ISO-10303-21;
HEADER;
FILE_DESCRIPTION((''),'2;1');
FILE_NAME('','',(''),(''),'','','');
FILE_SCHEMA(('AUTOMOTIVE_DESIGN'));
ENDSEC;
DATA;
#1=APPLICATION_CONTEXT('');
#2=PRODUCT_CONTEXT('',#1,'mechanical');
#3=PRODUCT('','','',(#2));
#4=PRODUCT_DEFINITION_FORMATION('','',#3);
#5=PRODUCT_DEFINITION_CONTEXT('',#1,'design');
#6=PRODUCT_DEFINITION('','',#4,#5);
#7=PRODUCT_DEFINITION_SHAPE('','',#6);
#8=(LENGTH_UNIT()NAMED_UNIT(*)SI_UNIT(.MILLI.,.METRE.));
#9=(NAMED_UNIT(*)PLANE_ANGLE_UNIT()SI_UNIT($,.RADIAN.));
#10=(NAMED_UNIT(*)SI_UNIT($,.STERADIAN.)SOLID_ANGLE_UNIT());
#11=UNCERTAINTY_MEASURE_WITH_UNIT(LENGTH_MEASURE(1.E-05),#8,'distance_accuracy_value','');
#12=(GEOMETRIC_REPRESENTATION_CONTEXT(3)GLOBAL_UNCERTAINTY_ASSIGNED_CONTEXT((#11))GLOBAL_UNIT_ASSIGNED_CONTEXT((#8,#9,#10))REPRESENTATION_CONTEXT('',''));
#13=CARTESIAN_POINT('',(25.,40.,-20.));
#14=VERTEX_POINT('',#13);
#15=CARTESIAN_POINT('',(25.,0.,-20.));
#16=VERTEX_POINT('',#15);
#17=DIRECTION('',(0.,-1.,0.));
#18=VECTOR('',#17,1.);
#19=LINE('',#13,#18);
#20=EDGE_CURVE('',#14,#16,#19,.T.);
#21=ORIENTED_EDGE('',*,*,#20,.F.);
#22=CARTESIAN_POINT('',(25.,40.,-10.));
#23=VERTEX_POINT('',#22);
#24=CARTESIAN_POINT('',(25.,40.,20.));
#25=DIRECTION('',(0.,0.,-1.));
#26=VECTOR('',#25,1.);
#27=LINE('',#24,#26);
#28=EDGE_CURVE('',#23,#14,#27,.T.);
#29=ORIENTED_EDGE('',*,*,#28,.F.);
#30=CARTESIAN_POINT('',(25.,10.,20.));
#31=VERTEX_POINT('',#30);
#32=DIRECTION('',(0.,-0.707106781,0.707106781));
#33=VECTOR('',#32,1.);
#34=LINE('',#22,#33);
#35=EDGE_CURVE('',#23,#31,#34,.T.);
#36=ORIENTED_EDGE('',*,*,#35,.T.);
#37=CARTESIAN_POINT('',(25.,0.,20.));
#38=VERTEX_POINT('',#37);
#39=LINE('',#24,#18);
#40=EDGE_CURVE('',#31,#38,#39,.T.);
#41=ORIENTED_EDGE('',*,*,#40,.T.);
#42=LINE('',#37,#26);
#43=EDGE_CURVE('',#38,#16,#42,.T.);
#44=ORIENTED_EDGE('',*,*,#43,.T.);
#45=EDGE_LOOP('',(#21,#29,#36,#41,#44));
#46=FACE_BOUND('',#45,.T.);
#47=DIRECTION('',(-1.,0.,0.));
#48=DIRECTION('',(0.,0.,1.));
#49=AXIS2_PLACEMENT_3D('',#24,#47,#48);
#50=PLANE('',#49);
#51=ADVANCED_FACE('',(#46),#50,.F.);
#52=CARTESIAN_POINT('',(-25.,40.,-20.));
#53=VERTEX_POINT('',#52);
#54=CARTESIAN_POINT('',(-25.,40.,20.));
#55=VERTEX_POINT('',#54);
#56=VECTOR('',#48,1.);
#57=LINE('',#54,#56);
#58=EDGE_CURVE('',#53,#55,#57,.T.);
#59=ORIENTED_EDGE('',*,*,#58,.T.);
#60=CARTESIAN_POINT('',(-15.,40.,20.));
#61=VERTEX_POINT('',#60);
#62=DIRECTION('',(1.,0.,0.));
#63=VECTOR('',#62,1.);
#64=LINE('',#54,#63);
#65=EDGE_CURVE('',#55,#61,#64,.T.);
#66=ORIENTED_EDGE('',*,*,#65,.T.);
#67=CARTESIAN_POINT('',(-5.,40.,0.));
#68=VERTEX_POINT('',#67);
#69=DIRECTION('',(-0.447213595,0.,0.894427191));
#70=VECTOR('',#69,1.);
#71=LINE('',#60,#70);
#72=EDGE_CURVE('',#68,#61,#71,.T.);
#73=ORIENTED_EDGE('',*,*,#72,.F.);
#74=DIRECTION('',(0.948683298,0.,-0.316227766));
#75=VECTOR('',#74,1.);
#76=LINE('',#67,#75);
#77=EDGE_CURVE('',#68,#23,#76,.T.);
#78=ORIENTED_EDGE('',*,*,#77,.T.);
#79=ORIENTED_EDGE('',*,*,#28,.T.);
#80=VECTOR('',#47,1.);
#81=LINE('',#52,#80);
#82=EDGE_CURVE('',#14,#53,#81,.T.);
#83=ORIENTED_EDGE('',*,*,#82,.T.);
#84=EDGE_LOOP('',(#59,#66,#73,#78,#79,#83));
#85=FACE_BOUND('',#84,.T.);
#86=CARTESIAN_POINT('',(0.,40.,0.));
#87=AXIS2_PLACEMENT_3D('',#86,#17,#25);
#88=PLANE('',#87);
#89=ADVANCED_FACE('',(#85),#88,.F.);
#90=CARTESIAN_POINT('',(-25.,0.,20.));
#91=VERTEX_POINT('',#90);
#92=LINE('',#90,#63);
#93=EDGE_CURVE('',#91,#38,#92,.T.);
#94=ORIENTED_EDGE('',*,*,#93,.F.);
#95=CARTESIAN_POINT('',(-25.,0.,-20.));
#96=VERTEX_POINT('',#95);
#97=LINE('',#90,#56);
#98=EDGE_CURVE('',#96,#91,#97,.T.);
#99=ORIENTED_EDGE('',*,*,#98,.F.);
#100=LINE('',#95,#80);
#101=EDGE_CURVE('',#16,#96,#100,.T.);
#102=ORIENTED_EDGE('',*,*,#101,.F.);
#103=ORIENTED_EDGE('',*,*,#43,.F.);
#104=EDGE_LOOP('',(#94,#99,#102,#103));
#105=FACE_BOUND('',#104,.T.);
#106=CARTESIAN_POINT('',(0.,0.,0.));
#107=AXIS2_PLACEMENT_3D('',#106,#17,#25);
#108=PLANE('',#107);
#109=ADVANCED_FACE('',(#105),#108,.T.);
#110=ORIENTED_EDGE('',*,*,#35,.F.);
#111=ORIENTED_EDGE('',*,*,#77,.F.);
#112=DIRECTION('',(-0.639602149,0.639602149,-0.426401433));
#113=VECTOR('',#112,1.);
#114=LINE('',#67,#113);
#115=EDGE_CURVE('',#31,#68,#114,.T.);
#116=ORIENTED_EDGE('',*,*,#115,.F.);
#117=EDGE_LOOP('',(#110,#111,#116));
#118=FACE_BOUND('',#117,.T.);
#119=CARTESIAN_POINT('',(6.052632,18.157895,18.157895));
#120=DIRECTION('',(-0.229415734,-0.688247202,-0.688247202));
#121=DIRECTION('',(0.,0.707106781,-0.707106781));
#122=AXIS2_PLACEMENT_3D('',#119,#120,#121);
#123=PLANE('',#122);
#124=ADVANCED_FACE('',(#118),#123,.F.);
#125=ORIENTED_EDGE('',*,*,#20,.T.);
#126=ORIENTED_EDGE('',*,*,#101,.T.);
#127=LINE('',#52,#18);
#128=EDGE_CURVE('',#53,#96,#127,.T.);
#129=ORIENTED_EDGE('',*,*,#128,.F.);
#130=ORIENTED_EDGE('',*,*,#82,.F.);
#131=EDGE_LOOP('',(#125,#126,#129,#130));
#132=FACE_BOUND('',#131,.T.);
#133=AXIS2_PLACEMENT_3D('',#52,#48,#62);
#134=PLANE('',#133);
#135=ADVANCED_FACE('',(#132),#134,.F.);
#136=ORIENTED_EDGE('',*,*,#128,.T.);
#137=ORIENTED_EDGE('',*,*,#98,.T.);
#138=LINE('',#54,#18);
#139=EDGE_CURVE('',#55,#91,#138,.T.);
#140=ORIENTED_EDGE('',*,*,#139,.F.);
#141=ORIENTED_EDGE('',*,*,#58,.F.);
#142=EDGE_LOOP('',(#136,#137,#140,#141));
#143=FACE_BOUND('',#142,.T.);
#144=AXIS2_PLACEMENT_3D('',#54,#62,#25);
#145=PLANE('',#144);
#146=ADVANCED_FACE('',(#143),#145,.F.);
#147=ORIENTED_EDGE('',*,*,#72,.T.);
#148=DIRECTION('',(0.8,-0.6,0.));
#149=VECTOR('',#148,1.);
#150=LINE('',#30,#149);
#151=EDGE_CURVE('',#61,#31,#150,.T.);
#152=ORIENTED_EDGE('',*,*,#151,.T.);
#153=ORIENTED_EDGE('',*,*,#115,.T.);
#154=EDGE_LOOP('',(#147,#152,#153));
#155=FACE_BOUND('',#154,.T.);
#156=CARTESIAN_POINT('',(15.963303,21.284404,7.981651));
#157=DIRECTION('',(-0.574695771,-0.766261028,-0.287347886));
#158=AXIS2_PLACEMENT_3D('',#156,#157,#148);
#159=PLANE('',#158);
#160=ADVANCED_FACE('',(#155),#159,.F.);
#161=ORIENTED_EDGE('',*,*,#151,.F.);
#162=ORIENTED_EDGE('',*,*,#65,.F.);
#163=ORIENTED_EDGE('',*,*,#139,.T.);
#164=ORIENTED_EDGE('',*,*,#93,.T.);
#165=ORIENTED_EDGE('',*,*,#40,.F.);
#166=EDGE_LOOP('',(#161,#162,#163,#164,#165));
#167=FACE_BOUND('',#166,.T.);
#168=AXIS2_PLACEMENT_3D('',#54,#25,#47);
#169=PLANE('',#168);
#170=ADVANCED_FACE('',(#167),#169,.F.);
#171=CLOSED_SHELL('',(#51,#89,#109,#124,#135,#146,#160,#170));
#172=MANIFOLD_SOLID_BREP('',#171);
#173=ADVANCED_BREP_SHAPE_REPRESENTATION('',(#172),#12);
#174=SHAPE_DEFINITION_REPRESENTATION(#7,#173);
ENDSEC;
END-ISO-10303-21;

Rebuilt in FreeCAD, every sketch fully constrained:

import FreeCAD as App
import Part
import Sketcher

V = App.Vector
Q = App.Units.Quantity


def add_polygon(sketch, points):
    """Adds a closed chain of lines whose ends are joined by coincident constraints."""
    first, n = sketch.GeometryCount, len(points)
    for a, b in zip(points, points[1:] + points[:1]):
        sketch.addGeometry(Part.LineSegment(App.Vector(*a, 0), App.Vector(*b, 0)), False)
    for i in range(n):
        sketch.addConstraint(Sketcher.Constraint("Coincident", first + i, 2, first + (i + 1) % n, 1))

doc = App.newDocument("Part")
params = doc.addObject("Spreadsheet::Sheet", "Params")
for row, (alias, value) in enumerate([
    ("sketch1_width", "50 mm"),
    ("sketch1_height", "40 mm"),
    ("pad1_length", "40 mm"),
    ("sketch2_length", "50 mm"),
    ("pocket1_length", "40 mm"),
    ("pocket2_length", "40 mm"),
], start=1):
    params.set(f"A{row}", alias)
    params.set(f"B{row}", "=" + value)
    params.setAlias(f"B{row}", alias)

body = doc.addObject("PartDesign::Body", "Body")

# Sketch on XZ plane
sketch1 = body.newObject("Sketcher::SketchObject", "Sketch")
sketch1.AttachmentSupport = (doc.getObject("XZ_Plane"), [""])
sketch1.MapMode = "FlatFace"
add_polygon(sketch1, [(-25, -20), (-25, 20), (25, 20), (25, -20)])  # lines 0-3
sketch1.addConstraint([
    Sketcher.Constraint("Vertical", 0),
    Sketcher.Constraint("Horizontal", 1),
    Sketcher.Constraint("Vertical", 2),
    Sketcher.Constraint("Horizontal", 3),
    Sketcher.Constraint("Symmetric", 0, 2, 2, 2, -1, 1),
    Sketcher.Constraint("DistanceX", 1, 1, 1, 2, Q("50 mm")),
    Sketcher.Constraint("DistanceY", 0, 1, 0, 2, Q("40 mm")),
])
sketch1.setExpression("Constraints[9]", "Params.sketch1_width")
sketch1.setExpression("Constraints[10]", "Params.sketch1_height")
pad1 = body.newObject("PartDesign::Pad", "Pad")
pad1.Profile = sketch1
pad1.setExpression("Length", "Params.pad1_length")
pad1.Reversed = True

# Sketch on an angled plane
sketch2 = body.newObject("Sketcher::SketchObject", "Sketch001")
sketch2.Placement = App.Placement(V(15.963303, 21.284404, 7.981651), App.Rotation(V(0.818367137, -0.538104419, -0.201789157), V(0, 0.351123442, -0.936329178), V(0.574695771, 0.766261028, 0.287347886), "ZXY"))
add_polygon(sketch2, [(-26, 14), (-38, -5), (11, -15)])  # lines 0-2
sketch2.addConstraint([
    Sketcher.Constraint("Distance", 1, Q("50 mm")),
    Sketcher.Constraint("Distance", 0, Q("22.36068 mm")),
    Sketcher.Constraint("DistanceX", -1, 1, 1, 2, Q("11.042351 mm")),
    Sketcher.Constraint("DistanceY", 1, 2, -1, 1, Q("15.215349 mm")),
    Sketcher.Constraint("DistanceX", 0, 2, 1, 2, Q("48.877818 mm")),
    Sketcher.Constraint("Distance", 2, Q("46.904158 mm")),
])
sketch2.setExpression("Constraints[3]", "Params.sketch2_length")
pocket1 = body.newObject("PartDesign::Pocket", "Pocket")
pocket1.Profile = sketch2
pocket1.setExpression("Length", "Params.pocket1_length")
pocket1.Reversed = True

# Sketch on an angled plane
sketch3 = body.newObject("Sketcher::SketchObject", "Sketch002")
sketch3.Placement = App.Placement(V(6.052632, 18.157895, 18.157895), App.Rotation(V(-0.973328527, 0.162221421, 0.162221421), V(0, 0.707106782, -0.707106782), V(-0.229415734, -0.688247202, -0.688247202), "ZXY"))
add_polygon(sketch3, [(11, 28), (-19, 35), (-19, -7)])  # lines 0-2
sketch3.addConstraint([
    Sketcher.Constraint("Vertical", 1),
    Sketcher.Constraint("DistanceX", -1, 1, 2, 2, Q("11.355499 mm")),
    Sketcher.Constraint("DistanceY", 1, 2, 1, 1, Q("42.426407 mm")),
    Sketcher.Constraint("DistanceX", 0, 2, -1, 1, Q("19.466571 mm")),
    Sketcher.Constraint("DistanceY", -1, 1, 0, 2, Q("35.355339 mm")),
    Sketcher.Constraint("DistanceY", -1, 1, 2, 2, Q("28.284271 mm")),
])
pocket2 = body.newObject("PartDesign::Pocket", "Pocket001")
pocket2.Profile = sketch3
pocket2.setExpression("Length", "Params.pocket2_length")

doc.recompute()
